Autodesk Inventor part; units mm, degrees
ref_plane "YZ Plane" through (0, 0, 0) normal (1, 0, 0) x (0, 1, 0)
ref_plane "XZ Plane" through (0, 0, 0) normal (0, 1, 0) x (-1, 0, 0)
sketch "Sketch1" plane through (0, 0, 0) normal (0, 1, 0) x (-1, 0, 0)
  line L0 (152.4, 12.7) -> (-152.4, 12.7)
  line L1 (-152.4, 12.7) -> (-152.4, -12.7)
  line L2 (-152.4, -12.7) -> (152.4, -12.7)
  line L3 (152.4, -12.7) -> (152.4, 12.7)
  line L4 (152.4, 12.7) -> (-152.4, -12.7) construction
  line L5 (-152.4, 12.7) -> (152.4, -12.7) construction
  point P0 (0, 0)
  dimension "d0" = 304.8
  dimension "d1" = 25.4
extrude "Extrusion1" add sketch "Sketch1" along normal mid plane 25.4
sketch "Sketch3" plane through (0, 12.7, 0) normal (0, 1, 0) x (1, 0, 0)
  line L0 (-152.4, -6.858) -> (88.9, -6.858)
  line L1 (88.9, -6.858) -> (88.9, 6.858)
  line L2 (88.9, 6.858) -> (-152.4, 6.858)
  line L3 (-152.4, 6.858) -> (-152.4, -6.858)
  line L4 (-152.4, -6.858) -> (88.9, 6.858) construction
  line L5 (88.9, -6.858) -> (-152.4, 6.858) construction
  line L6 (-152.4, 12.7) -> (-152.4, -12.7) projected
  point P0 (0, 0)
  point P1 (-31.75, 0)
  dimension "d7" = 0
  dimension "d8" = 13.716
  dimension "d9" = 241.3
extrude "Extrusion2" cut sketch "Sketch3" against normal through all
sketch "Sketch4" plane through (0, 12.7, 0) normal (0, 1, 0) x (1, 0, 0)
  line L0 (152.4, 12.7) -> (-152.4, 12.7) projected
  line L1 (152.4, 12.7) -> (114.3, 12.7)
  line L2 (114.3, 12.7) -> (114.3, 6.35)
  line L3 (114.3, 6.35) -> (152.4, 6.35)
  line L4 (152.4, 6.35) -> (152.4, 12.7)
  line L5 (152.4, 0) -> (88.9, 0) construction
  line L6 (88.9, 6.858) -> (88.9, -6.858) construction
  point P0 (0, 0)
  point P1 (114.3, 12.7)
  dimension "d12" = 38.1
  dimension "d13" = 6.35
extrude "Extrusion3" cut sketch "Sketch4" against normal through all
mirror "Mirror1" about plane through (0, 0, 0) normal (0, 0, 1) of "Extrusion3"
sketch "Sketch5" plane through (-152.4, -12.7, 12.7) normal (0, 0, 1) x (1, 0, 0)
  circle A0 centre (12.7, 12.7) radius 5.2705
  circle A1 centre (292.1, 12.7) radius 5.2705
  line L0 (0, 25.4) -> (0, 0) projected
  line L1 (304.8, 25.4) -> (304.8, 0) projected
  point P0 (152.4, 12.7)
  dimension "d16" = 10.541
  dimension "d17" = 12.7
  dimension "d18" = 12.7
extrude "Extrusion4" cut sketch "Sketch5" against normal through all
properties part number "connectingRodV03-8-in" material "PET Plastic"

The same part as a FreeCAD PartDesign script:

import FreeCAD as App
import Part
import Sketcher

V = App.Vector
Q = App.Units.Quantity

doc = App.newDocument("Part")
params = doc.addObject("Spreadsheet::Sheet", "Params")
for row, (alias, value) in enumerate([
    ("sketch1_width", "12 in"),
    ("sketch1_height", "1 in"),
    ("pad1_length", "1 in"),
    ("sketch2_width", "9.5 in"),
    ("sketch2_height", "0.54 in"),
    ("sketch3_width", "1.5 in"),
    ("sketch3_height", "0.25 in"),
    ("sketch4_diameter", "0.415 in"),
], start=1):
    params.set(f"A{row}", alias)
    params.set(f"B{row}", "=" + value)
    params.setAlias(f"B{row}", alias)

body = doc.addObject("PartDesign::Body", "Body")

# Sketch on XZ plane
sketch1 = body.newObject("Sketcher::SketchObject", "Sketch")
sketch1.AttachmentSupport = (doc.getObject("XZ_Plane"), [""])
sketch1.MapMode = "FlatFace"
sketch1.addGeometry([
    Part.LineSegment(V(-152, -13, 0), V(-152, 13, 0)),
    Part.LineSegment(V(-152, 13, 0), V(152, 13, 0)),
    Part.LineSegment(V(152, 13, 0), V(152, -13, 0)),
    Part.LineSegment(V(152, -13, 0), V(-152, -13, 0)),
], False)
sketch1.addConstraint([
    Sketcher.Constraint("Coincident", 0, 2, 1, 1),
    Sketcher.Constraint("Coincident", 1, 2, 2, 1),
    Sketcher.Constraint("Coincident", 2, 2, 3, 1),
    Sketcher.Constraint("Coincident", 3, 2, 0, 1),
    Sketcher.Constraint("Vertical", 0),
    Sketcher.Constraint("Horizontal", 1),
    Sketcher.Constraint("Vertical", 2),
    Sketcher.Constraint("Horizontal", 3),
    Sketcher.Constraint("Symmetric", 0, 2, 2, 2, -1, 1),
    Sketcher.Constraint("DistanceX", 1, 1, 1, 2, Q("12 in")),
    Sketcher.Constraint("DistanceY", 0, 1, 0, 2, Q("1 in")),
])
sketch1.setExpression("Constraints[9]", "Params.sketch1_width")
sketch1.setExpression("Constraints[10]", "Params.sketch1_height")
pad1 = body.newObject("PartDesign::Pad", "Pad")
pad1.Profile = sketch1
pad1.setExpression("Length", "Params.pad1_length")
pad1.Midplane = True

# Sketch on XZ plane
sketch2 = body.newObject("Sketcher::SketchObject", "Sketch001")
sketch2.AttachmentSupport = (doc.getObject("XZ_Plane"), [""])
sketch2.MapMode = "FlatFace"
sketch2.AttachmentOffset = App.Placement(V(0, 0, -0.5 * 25.4), App.Rotation())
sketch2.addGeometry([
    Part.LineSegment(V(-152, -7, 0), V(-152, 7, 0)),
    Part.LineSegment(V(-152, 7, 0), V(89, 7, 0)),
    Part.LineSegment(V(89, 7, 0), V(89, -7, 0)),
    Part.LineSegment(V(89, -7, 0), V(-152, -7, 0)),
], False)
sketch2.addConstraint([
    Sketcher.Constraint("Coincident", 0, 2, 1, 1),
    Sketcher.Constraint("Coincident", 1, 2, 2, 1),
    Sketcher.Constraint("Coincident", 2, 2, 3, 1),
    Sketcher.Constraint("Coincident", 3, 2, 0, 1),
    Sketcher.Constraint("Vertical", 0),
    Sketcher.Constraint("Horizontal", 1),
    Sketcher.Constraint("Vertical", 2),
    Sketcher.Constraint("Horizontal", 3),
    Sketcher.Constraint("DistanceX", 1, 1, 1, 2, Q("9.5 in")),
    Sketcher.Constraint("DistanceY", 0, 1, 0, 2, Q("0.54 in")),
    Sketcher.Constraint("DistanceX", 0, 2, -1, 1, Q("6 in")),
    Sketcher.Constraint("DistanceY", -1, 1, 0, 2, Q("0.27 in")),
])
sketch2.setExpression("Constraints[8]", "Params.sketch2_width")
sketch2.setExpression("Constraints[9]", "Params.sketch2_height")
pocket1 = body.newObject("PartDesign::Pocket", "Pocket")
pocket1.Profile = sketch2
pocket1.Type = "ThroughAll"
pocket1.Reversed = True

# Sketch on XZ plane
sketch3 = body.newObject("Sketcher::SketchObject", "Sketch002")
sketch3.AttachmentSupport = (doc.getObject("XZ_Plane"), [""])
sketch3.MapMode = "FlatFace"
sketch3.AttachmentOffset = App.Placement(V(0, 0, -0.5 * 25.4), App.Rotation())
sketch3.addGeometry([
    Part.LineSegment(V(152, -6, 0), V(152, -13, 0)),
    Part.LineSegment(V(152, -13, 0), V(114, -13, 0)),
    Part.LineSegment(V(114, -13, 0), V(114, -6, 0)),
    Part.LineSegment(V(114, -6, 0), V(152, -6, 0)),
], False)
sketch3.addConstraint([
    Sketcher.Constraint("Coincident", 0, 2, 1, 1),
    Sketcher.Constraint("Coincident", 1, 2, 2, 1),
    Sketcher.Constraint("Coincident", 2, 2, 3, 1),
    Sketcher.Constraint("Coincident", 3, 2, 0, 1),
    Sketcher.Constraint("Vertical", 0),
    Sketcher.Constraint("Horizontal", 1),
    Sketcher.Constraint("Vertical", 2),
    Sketcher.Constraint("Horizontal", 3),
    Sketcher.Constraint("DistanceX", 1, 2, 1, 1, Q("1.5 in")),
    Sketcher.Constraint("DistanceY", 0, 2, 0, 1, Q("0.25 in")),
    Sketcher.Constraint("DistanceY", 2, 2, -1, 1, Q("0.25 in")),
    Sketcher.Constraint("DistanceX", -1, 1, 0, 2, Q("6 in")),
])
sketch3.setExpression("Constraints[8]", "Params.sketch3_width")
sketch3.setExpression("Constraints[9]", "Params.sketch3_height")
pocket2 = body.newObject("PartDesign::Pocket", "Pocket001")
pocket2.Profile = sketch3
pocket2.Type = "ThroughAll"
pocket2.Reversed = True
doc.recompute()

mirrored = body.newObject("PartDesign::Mirrored", "Mirrored")
mirrored.Originals = [pocket2]
mirrored.MirrorPlane = (doc.getObject("XY_Plane"), [""])
body.Tip = mirrored

# Sketch on XY plane
sketch4 = body.newObject("Sketcher::SketchObject", "Sketch003")
sketch4.AttachmentSupport = (doc.getObject("XY_Plane"), [""])
sketch4.MapMode = "FlatFace"
sketch4.AttachmentOffset = App.Placement(V(0, 0, 0.5 * 25.4), App.Rotation())
sketch4.addGeometry([
    Part.Circle(V(-140, 0, 0), V(0, 0, 1), 5),
    Part.Circle(V(140, 0, 0), V(0, 0, 1), 5),
], False)
sketch4.addConstraint([
    Sketcher.Constraint("Equal", 0, 1),
    Sketcher.Constraint("Symmetric", 0, 3, 1, 3, -1, 1),
    Sketcher.Constraint("PointOnObject", 0, 3, -1),
    Sketcher.Constraint("Diameter", 0, Q("0.415 in")),
    Sketcher.Constraint("DistanceX", 0, 3, 1, 3, Q("11 in")),
])
sketch4.setExpression("Constraints[3]", "Params.sketch4_diameter")
pocket3 = body.newObject("PartDesign::Pocket", "Pocket002")
pocket3.Profile = sketch4
pocket3.Type = "ThroughAll"

doc.recompute()
